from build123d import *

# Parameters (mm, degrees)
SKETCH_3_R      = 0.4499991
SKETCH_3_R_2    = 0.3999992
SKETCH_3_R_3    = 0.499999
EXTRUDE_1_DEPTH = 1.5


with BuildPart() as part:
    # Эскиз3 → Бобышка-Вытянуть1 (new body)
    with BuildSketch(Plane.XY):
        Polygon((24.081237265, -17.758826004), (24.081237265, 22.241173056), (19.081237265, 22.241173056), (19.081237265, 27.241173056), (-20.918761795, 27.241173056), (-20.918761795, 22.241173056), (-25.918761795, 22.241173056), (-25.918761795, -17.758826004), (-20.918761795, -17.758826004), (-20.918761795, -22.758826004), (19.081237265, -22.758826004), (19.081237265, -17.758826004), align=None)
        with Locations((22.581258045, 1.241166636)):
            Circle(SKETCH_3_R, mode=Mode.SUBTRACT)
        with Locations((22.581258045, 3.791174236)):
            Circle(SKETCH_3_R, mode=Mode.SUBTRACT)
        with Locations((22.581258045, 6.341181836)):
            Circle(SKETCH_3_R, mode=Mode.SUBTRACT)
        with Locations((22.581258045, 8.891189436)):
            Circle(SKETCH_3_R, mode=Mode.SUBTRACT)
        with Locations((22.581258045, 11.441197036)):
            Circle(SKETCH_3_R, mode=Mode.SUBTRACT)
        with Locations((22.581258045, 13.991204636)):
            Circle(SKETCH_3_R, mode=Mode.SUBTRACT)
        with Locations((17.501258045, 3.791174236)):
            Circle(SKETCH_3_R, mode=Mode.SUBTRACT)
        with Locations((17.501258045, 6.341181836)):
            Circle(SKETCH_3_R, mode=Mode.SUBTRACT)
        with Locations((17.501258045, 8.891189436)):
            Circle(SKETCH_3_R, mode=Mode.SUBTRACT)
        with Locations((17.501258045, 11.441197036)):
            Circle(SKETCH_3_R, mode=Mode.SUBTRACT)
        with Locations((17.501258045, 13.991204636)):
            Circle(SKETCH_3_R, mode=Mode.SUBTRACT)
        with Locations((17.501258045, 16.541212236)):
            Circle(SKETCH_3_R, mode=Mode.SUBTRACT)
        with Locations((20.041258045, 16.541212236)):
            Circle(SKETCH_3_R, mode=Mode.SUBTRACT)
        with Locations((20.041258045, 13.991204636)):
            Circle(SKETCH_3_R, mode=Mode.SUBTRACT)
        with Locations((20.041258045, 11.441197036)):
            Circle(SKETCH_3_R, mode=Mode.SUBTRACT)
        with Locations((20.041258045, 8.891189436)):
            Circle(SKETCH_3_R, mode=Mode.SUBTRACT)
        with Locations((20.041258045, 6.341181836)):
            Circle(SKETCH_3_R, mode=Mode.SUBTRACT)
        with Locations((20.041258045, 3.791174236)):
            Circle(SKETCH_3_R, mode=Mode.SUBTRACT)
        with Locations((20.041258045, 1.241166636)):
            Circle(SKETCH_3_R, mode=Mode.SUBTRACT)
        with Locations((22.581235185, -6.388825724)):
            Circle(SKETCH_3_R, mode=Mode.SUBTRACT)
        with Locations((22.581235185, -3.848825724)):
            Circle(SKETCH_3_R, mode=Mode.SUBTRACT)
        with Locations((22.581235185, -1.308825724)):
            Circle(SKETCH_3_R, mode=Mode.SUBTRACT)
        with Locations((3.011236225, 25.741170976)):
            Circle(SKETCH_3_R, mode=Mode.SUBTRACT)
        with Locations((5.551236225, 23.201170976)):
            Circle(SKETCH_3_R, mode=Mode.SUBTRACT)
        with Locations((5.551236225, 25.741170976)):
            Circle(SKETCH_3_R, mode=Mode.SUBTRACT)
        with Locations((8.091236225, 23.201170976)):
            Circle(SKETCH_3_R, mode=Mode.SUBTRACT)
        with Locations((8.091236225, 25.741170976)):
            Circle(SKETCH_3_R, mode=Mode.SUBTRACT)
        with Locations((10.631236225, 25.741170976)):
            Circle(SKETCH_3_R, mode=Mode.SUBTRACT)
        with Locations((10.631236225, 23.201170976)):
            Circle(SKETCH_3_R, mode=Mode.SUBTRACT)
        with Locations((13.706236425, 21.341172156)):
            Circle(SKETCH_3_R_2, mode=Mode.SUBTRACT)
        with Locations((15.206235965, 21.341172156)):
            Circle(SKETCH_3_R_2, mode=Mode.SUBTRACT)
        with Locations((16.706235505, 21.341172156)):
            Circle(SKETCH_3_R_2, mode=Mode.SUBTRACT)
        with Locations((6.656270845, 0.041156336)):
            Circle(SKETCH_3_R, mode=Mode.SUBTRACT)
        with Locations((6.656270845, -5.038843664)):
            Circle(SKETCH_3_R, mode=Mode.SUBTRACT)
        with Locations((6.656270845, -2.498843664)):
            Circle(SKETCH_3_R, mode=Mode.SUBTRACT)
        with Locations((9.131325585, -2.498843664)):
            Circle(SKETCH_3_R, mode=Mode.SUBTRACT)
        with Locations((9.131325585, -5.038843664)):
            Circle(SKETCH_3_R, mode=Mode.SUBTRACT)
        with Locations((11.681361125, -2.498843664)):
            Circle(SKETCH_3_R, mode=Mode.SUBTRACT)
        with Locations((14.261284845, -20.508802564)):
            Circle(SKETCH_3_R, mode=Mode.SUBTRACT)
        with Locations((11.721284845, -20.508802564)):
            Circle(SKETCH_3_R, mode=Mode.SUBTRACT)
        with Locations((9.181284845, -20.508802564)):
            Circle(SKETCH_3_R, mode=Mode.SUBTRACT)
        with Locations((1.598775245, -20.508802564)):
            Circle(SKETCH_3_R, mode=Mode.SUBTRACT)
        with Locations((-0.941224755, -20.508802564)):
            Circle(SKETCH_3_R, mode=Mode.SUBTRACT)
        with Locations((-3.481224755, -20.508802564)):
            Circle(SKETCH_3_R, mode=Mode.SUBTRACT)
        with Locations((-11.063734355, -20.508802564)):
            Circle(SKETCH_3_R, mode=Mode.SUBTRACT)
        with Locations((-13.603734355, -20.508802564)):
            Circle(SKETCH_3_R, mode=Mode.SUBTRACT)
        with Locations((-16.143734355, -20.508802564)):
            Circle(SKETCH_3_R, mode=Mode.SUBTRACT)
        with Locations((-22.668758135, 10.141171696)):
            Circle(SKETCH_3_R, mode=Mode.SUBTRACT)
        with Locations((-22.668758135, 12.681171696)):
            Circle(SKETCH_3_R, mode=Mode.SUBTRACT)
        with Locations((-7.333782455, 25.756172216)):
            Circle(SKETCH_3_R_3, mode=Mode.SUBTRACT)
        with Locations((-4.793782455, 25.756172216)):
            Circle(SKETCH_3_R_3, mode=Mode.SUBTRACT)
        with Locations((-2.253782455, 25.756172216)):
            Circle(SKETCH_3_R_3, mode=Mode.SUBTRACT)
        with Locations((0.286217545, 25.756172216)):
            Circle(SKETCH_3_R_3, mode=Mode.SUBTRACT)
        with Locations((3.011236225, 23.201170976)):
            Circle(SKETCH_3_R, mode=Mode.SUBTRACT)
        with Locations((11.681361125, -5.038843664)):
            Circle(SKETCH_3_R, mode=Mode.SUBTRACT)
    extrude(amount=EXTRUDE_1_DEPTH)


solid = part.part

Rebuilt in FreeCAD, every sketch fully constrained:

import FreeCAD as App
import Part
import Sketcher

V = App.Vector
Q = App.Units.Quantity

doc = App.newDocument("Part")
body = doc.addObject("PartDesign::Body", "Body")

# Sketch on XY plane
sketch1 = body.newObject("Sketcher::SketchObject", "Sketch")
sketch1.AttachmentSupport = (doc.getObject("XY_Plane"), [""])
sketch1.MapMode = "FlatFace"
sketch1.addGeometry([
    Part.LineSegment(V(24.08, -17.76, 0), V(24.08, 22.24, 0)),  # 0
    Part.LineSegment(V(24.08, 22.24, 0), V(19.08, 22.24, 0)),  # 1
    Part.LineSegment(V(19.08, 22.24, 0), V(19.08, 27.24, 0)),  # 2
    Part.LineSegment(V(19.08, 27.24, 0), V(-20.92, 27.24, 0)),  # 3
    Part.LineSegment(V(-20.92, 27.24, 0), V(-20.92, 22.24, 0)),  # 4
    Part.LineSegment(V(-20.92, 22.24, 0), V(-25.92, 22.24, 0)),  # 5
    Part.LineSegment(V(-25.92, 22.24, 0), V(-25.92, -17.76, 0)),  # 6
    Part.LineSegment(V(-25.92, -17.76, 0), V(-20.92, -17.76, 0)),  # 7
    Part.LineSegment(V(-20.92, -17.76, 0), V(-20.92, -22.76, 0)),  # 8
    Part.LineSegment(V(-20.92, -22.76, 0), V(19.08, -22.76, 0)),  # 9
    Part.LineSegment(V(19.08, -22.76, 0), V(19.08, -17.76, 0)),  # 10
    Part.LineSegment(V(19.08, -17.76, 0), V(24.08, -17.76, 0)),  # 11
    Part.Circle(V(-16.14, -20.51, 0), V(0, 0, 1), 0.45),  # 12
    Part.Circle(V(-13.6, -20.51, 0), V(0, 0, 1), 0.45),  # 13
    Part.Circle(V(-11.06, -20.51, 0), V(0, 0, 1), 0.45),  # 14
    Part.Circle(V(-3.48, -20.51, 0), V(0, 0, 1), 0.45),  # 15
    Part.Circle(V(-0.94, -20.51, 0), V(0, 0, 1), 0.45),  # 16
    Part.Circle(V(1.6, -20.51, 0), V(0, 0, 1), 0.45),  # 17
    Part.Circle(V(9.18, -20.51, 0), V(0, 0, 1), 0.45),  # 18
    Part.Circle(V(11.72, -20.51, 0), V(0, 0, 1), 0.45),  # 19
    Part.Circle(V(14.26, -20.51, 0), V(0, 0, 1), 0.45),  # 20
    Part.Circle(V(6.66, -5.04, 0), V(0, 0, 1), 0.45),  # 21
    Part.Circle(V(9.13, -5.04, 0), V(0, 0, 1), 0.45),  # 22
    Part.Circle(V(6.66, -2.5, 0), V(0, 0, 1), 0.45),  # 23
    Part.Circle(V(9.13, -2.5, 0), V(0, 0, 1), 0.45),  # 24
    Part.Circle(V(6.66, 0.04, 0), V(0, 0, 1), 0.45),  # 25
    Part.Circle(V(11.68, -5.04, 0), V(0, 0, 1), 0.45),  # 26
    Part.Circle(V(22.58, -6.39, 0), V(0, 0, 1), 0.45),  # 27
    Part.Circle(V(22.58, -3.85, 0), V(0, 0, 1), 0.45),  # 28
    Part.Circle(V(11.68, -2.5, 0), V(0, 0, 1), 0.45),  # 29
    Part.Circle(V(22.58, -1.31, 0), V(0, 0, 1), 0.45),  # 30
    Part.Circle(V(20.04, 1.24, 0), V(0, 0, 1), 0.45),  # 31
    Part.Circle(V(22.58, 1.24, 0), V(0, 0, 1), 0.45),  # 32
    Part.Circle(V(-22.67, 10.14, 0), V(0, 0, 1), 0.45),  # 33
    Part.Circle(V(-22.67, 12.68, 0), V(0, 0, 1), 0.45),  # 34
    Part.Circle(V(-7.33, 25.76, 0), V(0, 0, 1), 0.5),  # 35
    Part.Circle(V(-4.79, 25.76, 0), V(0, 0, 1), 0.5),  # 36
    Part.Circle(V(-2.25, 25.76, 0), V(0, 0, 1), 0.5),  # 37
    Part.Circle(V(17.5, 3.79, 0), V(0, 0, 1), 0.45),  # 38
    Part.Circle(V(20.04, 3.79, 0), V(0, 0, 1), 0.45),  # 39
    Part.Circle(V(22.58, 3.79, 0), V(0, 0, 1), 0.45),  # 40
    Part.Circle(V(17.5, 6.34, 0), V(0, 0, 1), 0.45),  # 41
    Part.Circle(V(20.04, 6.34, 0), V(0, 0, 1), 0.45),  # 42
    Part.Circle(V(22.58, 6.34, 0), V(0, 0, 1), 0.45),  # 43
    Part.Circle(V(17.5, 8.89, 0), V(0, 0, 1), 0.45),  # 44
    Part.Circle(V(20.04, 8.89, 0), V(0, 0, 1), 0.45),  # 45
    Part.Circle(V(17.5, 11.44, 0), V(0, 0, 1), 0.45),  # 46
    Part.Circle(V(20.04, 11.44, 0), V(0, 0, 1), 0.45),  # 47
    Part.Circle(V(22.58, 8.89, 0), V(0, 0, 1), 0.45),  # 48
    Part.Circle(V(22.58, 11.44, 0), V(0, 0, 1), 0.45),  # 49
    Part.Circle(V(17.5, 13.99, 0), V(0, 0, 1), 0.45),  # 50
    Part.Circle(V(20.04, 13.99, 0), V(0, 0, 1), 0.45),  # 51
    Part.Circle(V(22.58, 13.99, 0), V(0, 0, 1), 0.45),  # 52
    Part.Circle(V(3.01, 23.2, 0), V(0, 0, 1), 0.45),  # 53
    Part.Circle(V(5.55, 23.2, 0), V(0, 0, 1), 0.45),  # 54
    Part.Circle(V(0.29, 25.76, 0), V(0, 0, 1), 0.5),  # 55
    Part.Circle(V(3.01, 25.74, 0), V(0, 0, 1), 0.45),  # 56
    Part.Circle(V(5.55, 25.74, 0), V(0, 0, 1), 0.45),  # 57
    Part.Circle(V(8.09, 23.2, 0), V(0, 0, 1), 0.45),  # 58
    Part.Circle(V(10.63, 23.2, 0), V(0, 0, 1), 0.45),  # 59
    Part.Circle(V(8.09, 25.74, 0), V(0, 0, 1), 0.45),  # 60
    Part.Circle(V(10.63, 25.74, 0), V(0, 0, 1), 0.45),  # 61
    Part.Circle(V(17.5, 16.54, 0), V(0, 0, 1), 0.45),  # 62
    Part.Circle(V(20.04, 16.54, 0), V(0, 0, 1), 0.45),  # 63
    Part.Circle(V(13.71, 21.34, 0), V(0, 0, 1), 0.4),  # 64
    Part.Circle(V(15.21, 21.34, 0), V(0, 0, 1), 0.4),  # 65
    Part.Circle(V(16.71, 21.34, 0), V(0, 0, 1), 0.4),  # 66
], False)
sketch1.addConstraint([
    Sketcher.Constraint("Coincident", 0, 2, 1, 1),
    Sketcher.Constraint("Coincident", 1, 2, 2, 1),
    Sketcher.Constraint("Coincident", 2, 2, 3, 1),
    Sketcher.Constraint("Coincident", 3, 2, 4, 1),
    Sketcher.Constraint("Coincident", 4, 2, 5, 1),
    Sketcher.Constraint("Coincident", 5, 2, 6, 1),
    Sketcher.Constraint("Coincident", 6, 2, 7, 1),
    Sketcher.Constraint("Coincident", 7, 2, 8, 1),
    Sketcher.Constraint("Coincident", 8, 2, 9, 1),
    Sketcher.Constraint("Coincident", 9, 2, 10, 1),
    Sketcher.Constraint("Coincident", 10, 2, 11, 1),
    Sketcher.Constraint("Coincident", 11, 2, 0, 1),
    Sketcher.Constraint("Vertical", 0),
    Sketcher.Constraint("Horizontal", 1),
    Sketcher.Constraint("Vertical", 2),
    Sketcher.Constraint("Horizontal", 3),
    Sketcher.Constraint("Vertical", 4),
    Sketcher.Constraint("Horizontal", 5),
    Sketcher.Constraint("Vertical", 6),
    Sketcher.Constraint("Horizontal", 7),
    Sketcher.Constraint("Vertical", 8),
    Sketcher.Constraint("Horizontal", 9),
    Sketcher.Constraint("Vertical", 10),
    Sketcher.Constraint("Horizontal", 11),
    Sketcher.Constraint("Equal", 12, 13),
    Sketcher.Constraint("Equal", 13, 14),
    Sketcher.Constraint("Equal", 14, 15),
    Sketcher.Constraint("Equal", 15, 16),
    Sketcher.Constraint("Equal", 16, 17),
    Sketcher.Constraint("Equal", 17, 18),
    Sketcher.Constraint("Equal", 18, 19),
    Sketcher.Constraint("Equal", 19, 20),
    Sketcher.Constraint("Equal", 20, 21),
    Sketcher.Constraint("Equal", 21, 22),
    Sketcher.Constraint("Equal", 22, 23),
    Sketcher.Constraint("Equal", 23, 24),
    Sketcher.Constraint("Equal", 24, 25),
    Sketcher.Constraint("Equal", 25, 26),
    Sketcher.Constraint("Equal", 26, 27),
    Sketcher.Constraint("Equal", 27, 28),
    Sketcher.Constraint("Equal", 28, 29),
    Sketcher.Constraint("Equal", 29, 30),
    Sketcher.Constraint("Equal", 30, 31),
    Sketcher.Constraint("Equal", 31, 32),
    Sketcher.Constraint("Equal", 32, 33),
    Sketcher.Constraint("Equal", 33, 34),
    Sketcher.Constraint("Equal", 35, 36),
    Sketcher.Constraint("Equal", 36, 37),
    Sketcher.Constraint("Equal", 34, 38),
    Sketcher.Constraint("Equal", 38, 39),
    Sketcher.Constraint("Equal", 39, 40),
    Sketcher.Constraint("Equal", 40, 41),
    Sketcher.Constraint("Equal", 41, 42),
    Sketcher.Constraint("Equal", 42, 43),
    Sketcher.Constraint("Equal", 43, 44),
    Sketcher.Constraint("Equal", 44, 45),
    Sketcher.Constraint("Equal", 45, 46),
    Sketcher.Constraint("Equal", 46, 47),
    Sketcher.Constraint("Equal", 47, 48),
    Sketcher.Constraint("Equal", 48, 49),
    Sketcher.Constraint("Equal", 49, 50),
    Sketcher.Constraint("Equal", 50, 51),
    Sketcher.Constraint("Equal", 51, 52),
    Sketcher.Constraint("Equal", 52, 53),
    Sketcher.Constraint("Equal", 53, 54),
    Sketcher.Constraint("Equal", 37, 55),
    Sketcher.Constraint("Equal", 54, 56),
    Sketcher.Constraint("Equal", 56, 57),
    Sketcher.Constraint("Equal", 57, 58),
    Sketcher.Constraint("Equal", 58, 59),
    Sketcher.Constraint("Equal", 59, 60),
    Sketcher.Constraint("Equal", 60, 61),
    Sketcher.Constraint("Equal", 61, 62),
    Sketcher.Constraint("Equal", 62, 63),
    Sketcher.Constraint("Equal", 64, 65),
    Sketcher.Constraint("Equal", 65, 66),
    Sketcher.Constraint("Horizontal", 12, 3, 13, 3),
    Sketcher.Constraint("Horizontal", 13, 3, 14, 3),
    Sketcher.Constraint("Horizontal", 14, 3, 15, 3),
    Sketcher.Constraint("Horizontal", 15, 3, 16, 3),
    Sketcher.Constraint("Horizontal", 16, 3, 17, 3),
    Sketcher.Constraint("Horizontal", 17, 3, 18, 3),
    Sketcher.Constraint("Horizontal", 18, 3, 19, 3),
    Sketcher.Constraint("Horizontal", 19, 3, 20, 3),
    Sketcher.Constraint("Horizontal", 21, 3, 22, 3),
    Sketcher.Constraint("Horizontal", 23, 3, 24, 3),
    Sketcher.Constraint("Horizontal", 22, 3, 26, 3),
    Sketcher.Constraint("Horizontal", 24, 3, 29, 3),
    Sketcher.Constraint("Horizontal", 31, 3, 32, 3),
    Sketcher.Constraint("Horizontal", 35, 3, 36, 3),
    Sketcher.Constraint("Horizontal", 36, 3, 37, 3),
    Sketcher.Constraint("Horizontal", 38, 3, 39, 3),
    Sketcher.Constraint("Horizontal", 39, 3, 40, 3),
    Sketcher.Constraint("Horizontal", 41, 3, 42, 3),
    Sketcher.Constraint("Horizontal", 42, 3, 43, 3),
    Sketcher.Constraint("Horizontal", 44, 3, 45, 3),
    Sketcher.Constraint("Horizontal", 46, 3, 47, 3),
    Sketcher.Constraint("Horizontal", 45, 3, 48, 3),
    Sketcher.Constraint("Horizontal", 47, 3, 49, 3),
    Sketcher.Constraint("Horizontal", 50, 3, 51, 3),
    Sketcher.Constraint("Horizontal", 51, 3, 52, 3),
    Sketcher.Constraint("Horizontal", 53, 3, 54, 3),
    Sketcher.Constraint("Horizontal", 37, 3, 55, 3),
    Sketcher.Constraint("Horizontal", 56, 3, 57, 3),
    Sketcher.Constraint("Horizontal", 54, 3, 58, 3),
    Sketcher.Constraint("Horizontal", 58, 3, 59, 3),
    Sketcher.Constraint("Horizontal", 57, 3, 60, 3),
    Sketcher.Constraint("Horizontal", 60, 3, 61, 3),
    Sketcher.Constraint("Horizontal", 62, 3, 63, 3),
    Sketcher.Constraint("Horizontal", 64, 3, 65, 3),
    Sketcher.Constraint("Horizontal", 65, 3, 66, 3),
    Sketcher.Constraint("Horizontal", 1, 2, 4, 2),
    Sketcher.Constraint("Horizontal", 7, 2, 10, 2),
    Sketcher.Constraint("Vertical", 21, 3, 23, 3),
    Sketcher.Constraint("Vertical", 22, 3, 24, 3),
    Sketcher.Constraint("Vertical", 23, 3, 25, 3),
    Sketcher.Constraint("Vertical", 27, 3, 28, 3),
    Sketcher.Constraint("Vertical", 26, 3, 29, 3),
    Sketcher.Constraint("Vertical", 28, 3, 30, 3),
    Sketcher.Constraint("Vertical", 33, 3, 34, 3),
    Sketcher.Constraint("Vertical", 31, 3, 39, 3),
    Sketcher.Constraint("Vertical", 32, 3, 40, 3),
    Sketcher.Constraint("Vertical", 38, 3, 41, 3),
    Sketcher.Constraint("Vertical", 39, 3, 42, 3),
    Sketcher.Constraint("Vertical", 40, 3, 43, 3),
    Sketcher.Constraint("Vertical", 41, 3, 44, 3),
    Sketcher.Constraint("Vertical", 42, 3, 45, 3),
    Sketcher.Constraint("Vertical", 44, 3, 46, 3),
    Sketcher.Constraint("Vertical", 45, 3, 47, 3),
    Sketcher.Constraint("Vertical", 43, 3, 48, 3),
    Sketcher.Constraint("Vertical", 48, 3, 49, 3),
    Sketcher.Constraint("Vertical", 46, 3, 50, 3),
    Sketcher.Constraint("Vertical", 47, 3, 51, 3),
    Sketcher.Constraint("Vertical", 49, 3, 52, 3),
    Sketcher.Constraint("Vertical", 53, 3, 56, 3),
    Sketcher.Constraint("Vertical", 54, 3, 57, 3),
    Sketcher.Constraint("Vertical", 58, 3, 60, 3),
    Sketcher.Constraint("Vertical", 59, 3, 61, 3),
    Sketcher.Constraint("Vertical", 50, 3, 62, 3),
    Sketcher.Constraint("Vertical", 51, 3, 63, 3),
    Sketcher.Constraint("Vertical", 4, 2, 7, 2),
    Sketcher.Constraint("Vertical", 2, 2, 9, 2),
    Sketcher.Constraint("Equal", 1, 5),
    Sketcher.Constraint("Equal", 9, 0),
    Sketcher.Constraint("Equal", 11, 2),
    Sketcher.Constraint("Equal", 4, 8),
    Sketcher.Constraint("Diameter", 35, Q("0.999998 mm")),
    Sketcher.Constraint("Diameter", 12, Q("0.899998 mm")),
    Sketcher.Constraint("Diameter", 64, Q("0.799998 mm")),
    Sketcher.Constraint("DistanceX", 1, 2, 1, 1, Q("5 mm")),
    Sketcher.Constraint("DistanceX", 3, 2, 3, 1, Q("39.999999 mm")),
    Sketcher.Constraint("DistanceX", -1, 1, 21, 3, Q("6.656271 mm")),
    Sketcher.Constraint("DistanceX", -1, 1, 26, 3, Q("11.681361 mm")),
    Sketcher.Constraint("DistanceX", -1, 1, 31, 3, Q("20.041258 mm")),
    Sketcher.Constraint("DistanceX", -1, 1, 32, 3, Q("22.581258 mm")),
    Sketcher.Constraint("DistanceX", 33, 3, -1, 1, Q("22.668758 mm")),
    Sketcher.Constraint("DistanceY", -1, 1, 33, 3, Q("10.141172 mm")),
    Sketcher.Constraint("DistanceY", -1, 1, 34, 3, Q("12.681172 mm")),
    Sketcher.Constraint("DistanceX", -1, 1, 38, 3, Q("17.501258 mm")),
    Sketcher.Constraint("DistanceY", -1, 1, 41, 3, Q("6.341182 mm")),
    Sketcher.Constraint("DistanceY", -1, 1, 44, 3, Q("8.891189 mm")),
    Sketcher.Constraint("DistanceY", -1, 1, 53, 3, Q("23.201171 mm")),
    Sketcher.Constraint("DistanceY", -1, 1, 56, 3, Q("25.741171 mm")),
    Sketcher.Constraint("DistanceX", 3, 2, -1, 1, Q("20.918762 mm")),
    Sketcher.Constraint("DistanceX", 12, 3, -1, 1, Q("16.143734 mm")),
    Sketcher.Constraint("DistanceY", 12, 3, -1, 1, Q("20.508803 mm")),
    Sketcher.Constraint("DistanceX", 13, 3, -1, 1, Q("13.603734 mm")),
    Sketcher.Constraint("DistanceX", 14, 3, -1, 1, Q("11.063734 mm")),
    Sketcher.Constraint("DistanceX", 15, 3, -1, 1, Q("3.481225 mm")),
    Sketcher.Constraint("DistanceX", 16, 3, -1, 1, Q("0.941225 mm")),
    Sketcher.Constraint("DistanceX", -1, 1, 17, 3, Q("1.598775 mm")),
    Sketcher.Constraint("DistanceX", -1, 1, 18, 3, Q("9.181285 mm")),
    Sketcher.Constraint("DistanceX", -1, 1, 19, 3, Q("11.721285 mm")),
    Sketcher.Constraint("DistanceX", -1, 1, 20, 3, Q("14.261285 mm")),
    Sketcher.Constraint("DistanceY", 21, 3, -1, 1, Q("5.038844 mm")),
    Sketcher.Constraint("DistanceX", -1, 1, 22, 3, Q("9.131326 mm")),
    Sketcher.Constraint("DistanceY", 23, 3, -1, 1, Q("2.498844 mm")),
    Sketcher.Constraint("DistanceY", -1, 1, 25, 3, Q("0.041156 mm")),
    Sketcher.Constraint("DistanceX", -1, 1, 27, 3, Q("22.581235 mm")),
    Sketcher.Constraint("DistanceY", 27, 3, -1, 1, Q("6.388826 mm")),
    Sketcher.Constraint("DistanceY", 28, 3, -1, 1, Q("3.848826 mm")),
    Sketcher.Constraint("DistanceY", 30, 3, -1, 1, Q("1.308826 mm")),
    Sketcher.Constraint("DistanceY", -1, 1, 31, 3, Q("1.241167 mm")),
    Sketcher.Constraint("DistanceX", 35, 3, -1, 1, Q("7.333782 mm")),
    Sketcher.Constraint("DistanceY", -1, 1, 35, 3, Q("25.756172 mm")),
    Sketcher.Constraint("DistanceX", 36, 3, -1, 1, Q("4.793782 mm")),
    Sketcher.Constraint("DistanceX", 37, 3, -1, 1, Q("2.253782 mm")),
    Sketcher.Constraint("DistanceY", -1, 1, 38, 3, Q("3.791174 mm")),
    Sketcher.Constraint("DistanceY", -1, 1, 46, 3, Q("11.441197 mm")),
    Sketcher.Constraint("DistanceY", -1, 1, 50, 3, Q("13.991205 mm")),
    Sketcher.Constraint("DistanceX", -1, 1, 53, 3, Q("3.011236 mm")),
    Sketcher.Constraint("DistanceX", -1, 1, 54, 3, Q("5.551236 mm")),
    Sketcher.Constraint("DistanceX", -1, 1, 55, 3, Q("0.286218 mm")),
    Sketcher.Constraint("DistanceX", -1, 1, 58, 3, Q("8.091236 mm")),
    Sketcher.Constraint("DistanceX", -1, 1, 59, 3, Q("10.631236 mm")),
    Sketcher.Constraint("DistanceY", -1, 1, 62, 3, Q("16.541212 mm")),
    Sketcher.Constraint("DistanceX", -1, 1, 64, 3, Q("13.706236 mm")),
    Sketcher.Constraint("DistanceY", -1, 1, 64, 3, Q("21.341172 mm")),
    Sketcher.Constraint("DistanceX", -1, 1, 65, 3, Q("15.206236 mm")),
    Sketcher.Constraint("DistanceX", -1, 1, 66, 3, Q("16.706236 mm")),
    Sketcher.Constraint("DistanceY", -1, 1, 0, 2, Q("22.241173 mm")),
])
pad1 = body.newObject("PartDesign::Pad", "Pad")
pad1.Profile = sketch1
pad1.Length = 1.5

doc.recompute()
